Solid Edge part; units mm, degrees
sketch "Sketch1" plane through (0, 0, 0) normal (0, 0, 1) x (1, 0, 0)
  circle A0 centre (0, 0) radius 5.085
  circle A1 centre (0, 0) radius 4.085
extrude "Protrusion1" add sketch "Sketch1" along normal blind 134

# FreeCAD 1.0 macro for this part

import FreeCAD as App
import Part
import Sketcher
from FreeCAD import Vector
Q = App.Units.Quantity

doc = App.newDocument("Part")
params = doc.addObject("Spreadsheet::Sheet", "Params")
for row, (alias, value) in enumerate([
    ("sketch1_diameter", "10.17 mm"),
    ("sketch1_diameter2", "8.17 mm"),
    ("pad1_length", "134 mm"),
], start=1):
    params.set(f"A{row}", alias)
    params.set(f"B{row}", "=" + value)
    params.setAlias(f"B{row}", alias)

body = doc.addObject("PartDesign::Body", "Body")

# Sketch on XY plane
sketch1 = doc.addObject("Sketcher::SketchObject", "Sketch")
body.addObject(sketch1)
sketch1.AttachmentSupport = (doc.XY_Plane, [""])
sketch1.MapMode = "FlatFace"
sketch1.addGeometry([
    Part.Circle(Vector(0, 0, 0), Vector(0, 0, 1), 5.1),
    Part.Circle(Vector(0, 0, 0), Vector(0, 0, 1), 4.1),
], False)
sketch1.addConstraint([
    Sketcher.Constraint("Coincident", 0, 3, -1, 1),
    Sketcher.Constraint("Coincident", 1, 3, -1, 1),
    Sketcher.Constraint("Diameter", 0, Q("10.17 mm")),
    Sketcher.Constraint("Diameter", 1, Q("8.17 mm")),
])
sketch1.setExpression("Constraints[2]", "Params.sketch1_diameter")
sketch1.setExpression("Constraints[3]", "Params.sketch1_diameter2")
pad1 = doc.addObject("PartDesign::Pad", "Pad")
body.addObject(pad1)
pad1.Profile = sketch1
pad1.setExpression("Length", "Params.pad1_length")

doc.recompute()
